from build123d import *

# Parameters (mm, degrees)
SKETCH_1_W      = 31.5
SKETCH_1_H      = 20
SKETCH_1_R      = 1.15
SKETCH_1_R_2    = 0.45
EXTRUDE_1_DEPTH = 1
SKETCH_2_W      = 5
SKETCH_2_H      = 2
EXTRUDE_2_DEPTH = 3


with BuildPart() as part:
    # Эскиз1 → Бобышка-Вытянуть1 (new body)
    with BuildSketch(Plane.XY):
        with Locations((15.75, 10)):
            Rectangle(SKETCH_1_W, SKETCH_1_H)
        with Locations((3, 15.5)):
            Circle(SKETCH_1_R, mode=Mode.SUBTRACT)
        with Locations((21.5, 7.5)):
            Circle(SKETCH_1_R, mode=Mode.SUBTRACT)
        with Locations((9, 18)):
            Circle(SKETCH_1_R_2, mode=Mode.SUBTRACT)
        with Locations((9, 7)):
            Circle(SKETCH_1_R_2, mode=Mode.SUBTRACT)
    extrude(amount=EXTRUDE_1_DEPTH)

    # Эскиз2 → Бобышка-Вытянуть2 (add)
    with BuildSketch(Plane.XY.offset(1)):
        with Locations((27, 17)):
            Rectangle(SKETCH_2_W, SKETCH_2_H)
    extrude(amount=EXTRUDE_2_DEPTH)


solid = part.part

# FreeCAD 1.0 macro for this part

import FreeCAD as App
import Part
import Sketcher

V = App.Vector

doc = App.newDocument("Part")
body = doc.addObject("PartDesign::Body", "Body")

# Sketch on XY plane
sketch1 = body.newObject("Sketcher::SketchObject", "Sketch")
sketch1.AttachmentSupport = (doc.getObject("XY_Plane"), [""])
sketch1.MapMode = "FlatFace"
sketch1.addGeometry([
    Part.LineSegment(V(0, 20, 0), V(0, 0, 0)),  # 0
    Part.LineSegment(V(0, 0, 0), V(31.5, 0, 0)),  # 1
    Part.LineSegment(V(31.5, 0, 0), V(31.5, 20, 0)),  # 2
    Part.LineSegment(V(31.5, 20, 0), V(0, 20, 0)),  # 3
    Part.Circle(V(9, 7, 0), V(0, 0, 1), 0.45),  # 4
    Part.Circle(V(21.5, 7.5, 0), V(0, 0, 1), 1.15),  # 5
    Part.Circle(V(3, 15.5, 0), V(0, 0, 1), 1.15),  # 6
    Part.Circle(V(9, 18, 0), V(0, 0, 1), 0.45),  # 7
], False)
sketch1.addConstraint([
    Sketcher.Constraint("Coincident", 0, 2, 1, 1),
    Sketcher.Constraint("Coincident", 1, 2, 2, 1),
    Sketcher.Constraint("Coincident", 2, 2, 3, 1),
    Sketcher.Constraint("Coincident", 3, 2, 0, 1),
    Sketcher.Constraint("Vertical", 0),
    Sketcher.Constraint("Horizontal", 1),
    Sketcher.Constraint("Vertical", 2),
    Sketcher.Constraint("Horizontal", 3),
    Sketcher.Constraint("Coincident", 0, 2, -1, 1),
    Sketcher.Constraint("Equal", 5, 6),
    Sketcher.Constraint("Equal", 4, 7),
    Sketcher.Constraint("Vertical", 4, 3, 7, 3),
    Sketcher.Constraint("Diameter", 4, 0.9),
    Sketcher.Constraint("Diameter", 5, 2.3),
    Sketcher.Constraint("DistanceY", 0, 2, 0, 1, 20.0),
    Sketcher.Constraint("DistanceX", 1, 1, 1, 2, 31.5),
    Sketcher.Constraint("DistanceX", -1, 1, 4, 3, 9.0),
    Sketcher.Constraint("DistanceY", -1, 1, 4, 3, 7.0),
    Sketcher.Constraint("DistanceX", -1, 1, 6, 3, 3.0),
    Sketcher.Constraint("DistanceY", -1, 1, 7, 3, 18.0),
    Sketcher.Constraint("DistanceY", 5, 3, 6, 3, 8.0),
    Sketcher.Constraint("DistanceX", 5, 3, 1, 2, 10.0),
    Sketcher.Constraint("DistanceY", -1, 1, 5, 3, 7.5),
])
pad1 = body.newObject("PartDesign::Pad", "Pad")
pad1.Profile = sketch1
pad1.Length = 1

# Sketch on XY plane
sketch2 = body.newObject("Sketcher::SketchObject", "Sketch001")
sketch2.AttachmentSupport = (doc.getObject("XY_Plane"), [""])
sketch2.MapMode = "FlatFace"
sketch2.AttachmentOffset = App.Placement(V(0, 0, 1), App.Rotation())
sketch2.addGeometry([
    Part.LineSegment(V(24.5, 18, 0), V(24.5, 16, 0)),
    Part.LineSegment(V(24.5, 16, 0), V(29.5, 16, 0)),
    Part.LineSegment(V(29.5, 16, 0), V(29.5, 18, 0)),
    Part.LineSegment(V(29.5, 18, 0), V(24.5, 18, 0)),
], False)
sketch2.addConstraint([
    Sketcher.Constraint("Coincident", 0, 2, 1, 1),
    Sketcher.Constraint("Coincident", 1, 2, 2, 1),
    Sketcher.Constraint("Coincident", 2, 2, 3, 1),
    Sketcher.Constraint("Coincident", 3, 2, 0, 1),
    Sketcher.Constraint("Vertical", 0),
    Sketcher.Constraint("Horizontal", 1),
    Sketcher.Constraint("Vertical", 2),
    Sketcher.Constraint("Horizontal", 3),
    Sketcher.Constraint("DistanceX", 1, 1, 1, 2, 5.0),
    Sketcher.Constraint("DistanceY", 0, 2, 0, 1, 2.0),
    Sketcher.Constraint("DistanceY", -1, 1, 0, 2, 16.0),
    Sketcher.Constraint("DistanceX", -1, 1, 0, 2, 24.5),
])
pad2 = body.newObject("PartDesign::Pad", "Pad001")
pad2.Profile = sketch2
pad2.Length = 3

doc.recompute()
